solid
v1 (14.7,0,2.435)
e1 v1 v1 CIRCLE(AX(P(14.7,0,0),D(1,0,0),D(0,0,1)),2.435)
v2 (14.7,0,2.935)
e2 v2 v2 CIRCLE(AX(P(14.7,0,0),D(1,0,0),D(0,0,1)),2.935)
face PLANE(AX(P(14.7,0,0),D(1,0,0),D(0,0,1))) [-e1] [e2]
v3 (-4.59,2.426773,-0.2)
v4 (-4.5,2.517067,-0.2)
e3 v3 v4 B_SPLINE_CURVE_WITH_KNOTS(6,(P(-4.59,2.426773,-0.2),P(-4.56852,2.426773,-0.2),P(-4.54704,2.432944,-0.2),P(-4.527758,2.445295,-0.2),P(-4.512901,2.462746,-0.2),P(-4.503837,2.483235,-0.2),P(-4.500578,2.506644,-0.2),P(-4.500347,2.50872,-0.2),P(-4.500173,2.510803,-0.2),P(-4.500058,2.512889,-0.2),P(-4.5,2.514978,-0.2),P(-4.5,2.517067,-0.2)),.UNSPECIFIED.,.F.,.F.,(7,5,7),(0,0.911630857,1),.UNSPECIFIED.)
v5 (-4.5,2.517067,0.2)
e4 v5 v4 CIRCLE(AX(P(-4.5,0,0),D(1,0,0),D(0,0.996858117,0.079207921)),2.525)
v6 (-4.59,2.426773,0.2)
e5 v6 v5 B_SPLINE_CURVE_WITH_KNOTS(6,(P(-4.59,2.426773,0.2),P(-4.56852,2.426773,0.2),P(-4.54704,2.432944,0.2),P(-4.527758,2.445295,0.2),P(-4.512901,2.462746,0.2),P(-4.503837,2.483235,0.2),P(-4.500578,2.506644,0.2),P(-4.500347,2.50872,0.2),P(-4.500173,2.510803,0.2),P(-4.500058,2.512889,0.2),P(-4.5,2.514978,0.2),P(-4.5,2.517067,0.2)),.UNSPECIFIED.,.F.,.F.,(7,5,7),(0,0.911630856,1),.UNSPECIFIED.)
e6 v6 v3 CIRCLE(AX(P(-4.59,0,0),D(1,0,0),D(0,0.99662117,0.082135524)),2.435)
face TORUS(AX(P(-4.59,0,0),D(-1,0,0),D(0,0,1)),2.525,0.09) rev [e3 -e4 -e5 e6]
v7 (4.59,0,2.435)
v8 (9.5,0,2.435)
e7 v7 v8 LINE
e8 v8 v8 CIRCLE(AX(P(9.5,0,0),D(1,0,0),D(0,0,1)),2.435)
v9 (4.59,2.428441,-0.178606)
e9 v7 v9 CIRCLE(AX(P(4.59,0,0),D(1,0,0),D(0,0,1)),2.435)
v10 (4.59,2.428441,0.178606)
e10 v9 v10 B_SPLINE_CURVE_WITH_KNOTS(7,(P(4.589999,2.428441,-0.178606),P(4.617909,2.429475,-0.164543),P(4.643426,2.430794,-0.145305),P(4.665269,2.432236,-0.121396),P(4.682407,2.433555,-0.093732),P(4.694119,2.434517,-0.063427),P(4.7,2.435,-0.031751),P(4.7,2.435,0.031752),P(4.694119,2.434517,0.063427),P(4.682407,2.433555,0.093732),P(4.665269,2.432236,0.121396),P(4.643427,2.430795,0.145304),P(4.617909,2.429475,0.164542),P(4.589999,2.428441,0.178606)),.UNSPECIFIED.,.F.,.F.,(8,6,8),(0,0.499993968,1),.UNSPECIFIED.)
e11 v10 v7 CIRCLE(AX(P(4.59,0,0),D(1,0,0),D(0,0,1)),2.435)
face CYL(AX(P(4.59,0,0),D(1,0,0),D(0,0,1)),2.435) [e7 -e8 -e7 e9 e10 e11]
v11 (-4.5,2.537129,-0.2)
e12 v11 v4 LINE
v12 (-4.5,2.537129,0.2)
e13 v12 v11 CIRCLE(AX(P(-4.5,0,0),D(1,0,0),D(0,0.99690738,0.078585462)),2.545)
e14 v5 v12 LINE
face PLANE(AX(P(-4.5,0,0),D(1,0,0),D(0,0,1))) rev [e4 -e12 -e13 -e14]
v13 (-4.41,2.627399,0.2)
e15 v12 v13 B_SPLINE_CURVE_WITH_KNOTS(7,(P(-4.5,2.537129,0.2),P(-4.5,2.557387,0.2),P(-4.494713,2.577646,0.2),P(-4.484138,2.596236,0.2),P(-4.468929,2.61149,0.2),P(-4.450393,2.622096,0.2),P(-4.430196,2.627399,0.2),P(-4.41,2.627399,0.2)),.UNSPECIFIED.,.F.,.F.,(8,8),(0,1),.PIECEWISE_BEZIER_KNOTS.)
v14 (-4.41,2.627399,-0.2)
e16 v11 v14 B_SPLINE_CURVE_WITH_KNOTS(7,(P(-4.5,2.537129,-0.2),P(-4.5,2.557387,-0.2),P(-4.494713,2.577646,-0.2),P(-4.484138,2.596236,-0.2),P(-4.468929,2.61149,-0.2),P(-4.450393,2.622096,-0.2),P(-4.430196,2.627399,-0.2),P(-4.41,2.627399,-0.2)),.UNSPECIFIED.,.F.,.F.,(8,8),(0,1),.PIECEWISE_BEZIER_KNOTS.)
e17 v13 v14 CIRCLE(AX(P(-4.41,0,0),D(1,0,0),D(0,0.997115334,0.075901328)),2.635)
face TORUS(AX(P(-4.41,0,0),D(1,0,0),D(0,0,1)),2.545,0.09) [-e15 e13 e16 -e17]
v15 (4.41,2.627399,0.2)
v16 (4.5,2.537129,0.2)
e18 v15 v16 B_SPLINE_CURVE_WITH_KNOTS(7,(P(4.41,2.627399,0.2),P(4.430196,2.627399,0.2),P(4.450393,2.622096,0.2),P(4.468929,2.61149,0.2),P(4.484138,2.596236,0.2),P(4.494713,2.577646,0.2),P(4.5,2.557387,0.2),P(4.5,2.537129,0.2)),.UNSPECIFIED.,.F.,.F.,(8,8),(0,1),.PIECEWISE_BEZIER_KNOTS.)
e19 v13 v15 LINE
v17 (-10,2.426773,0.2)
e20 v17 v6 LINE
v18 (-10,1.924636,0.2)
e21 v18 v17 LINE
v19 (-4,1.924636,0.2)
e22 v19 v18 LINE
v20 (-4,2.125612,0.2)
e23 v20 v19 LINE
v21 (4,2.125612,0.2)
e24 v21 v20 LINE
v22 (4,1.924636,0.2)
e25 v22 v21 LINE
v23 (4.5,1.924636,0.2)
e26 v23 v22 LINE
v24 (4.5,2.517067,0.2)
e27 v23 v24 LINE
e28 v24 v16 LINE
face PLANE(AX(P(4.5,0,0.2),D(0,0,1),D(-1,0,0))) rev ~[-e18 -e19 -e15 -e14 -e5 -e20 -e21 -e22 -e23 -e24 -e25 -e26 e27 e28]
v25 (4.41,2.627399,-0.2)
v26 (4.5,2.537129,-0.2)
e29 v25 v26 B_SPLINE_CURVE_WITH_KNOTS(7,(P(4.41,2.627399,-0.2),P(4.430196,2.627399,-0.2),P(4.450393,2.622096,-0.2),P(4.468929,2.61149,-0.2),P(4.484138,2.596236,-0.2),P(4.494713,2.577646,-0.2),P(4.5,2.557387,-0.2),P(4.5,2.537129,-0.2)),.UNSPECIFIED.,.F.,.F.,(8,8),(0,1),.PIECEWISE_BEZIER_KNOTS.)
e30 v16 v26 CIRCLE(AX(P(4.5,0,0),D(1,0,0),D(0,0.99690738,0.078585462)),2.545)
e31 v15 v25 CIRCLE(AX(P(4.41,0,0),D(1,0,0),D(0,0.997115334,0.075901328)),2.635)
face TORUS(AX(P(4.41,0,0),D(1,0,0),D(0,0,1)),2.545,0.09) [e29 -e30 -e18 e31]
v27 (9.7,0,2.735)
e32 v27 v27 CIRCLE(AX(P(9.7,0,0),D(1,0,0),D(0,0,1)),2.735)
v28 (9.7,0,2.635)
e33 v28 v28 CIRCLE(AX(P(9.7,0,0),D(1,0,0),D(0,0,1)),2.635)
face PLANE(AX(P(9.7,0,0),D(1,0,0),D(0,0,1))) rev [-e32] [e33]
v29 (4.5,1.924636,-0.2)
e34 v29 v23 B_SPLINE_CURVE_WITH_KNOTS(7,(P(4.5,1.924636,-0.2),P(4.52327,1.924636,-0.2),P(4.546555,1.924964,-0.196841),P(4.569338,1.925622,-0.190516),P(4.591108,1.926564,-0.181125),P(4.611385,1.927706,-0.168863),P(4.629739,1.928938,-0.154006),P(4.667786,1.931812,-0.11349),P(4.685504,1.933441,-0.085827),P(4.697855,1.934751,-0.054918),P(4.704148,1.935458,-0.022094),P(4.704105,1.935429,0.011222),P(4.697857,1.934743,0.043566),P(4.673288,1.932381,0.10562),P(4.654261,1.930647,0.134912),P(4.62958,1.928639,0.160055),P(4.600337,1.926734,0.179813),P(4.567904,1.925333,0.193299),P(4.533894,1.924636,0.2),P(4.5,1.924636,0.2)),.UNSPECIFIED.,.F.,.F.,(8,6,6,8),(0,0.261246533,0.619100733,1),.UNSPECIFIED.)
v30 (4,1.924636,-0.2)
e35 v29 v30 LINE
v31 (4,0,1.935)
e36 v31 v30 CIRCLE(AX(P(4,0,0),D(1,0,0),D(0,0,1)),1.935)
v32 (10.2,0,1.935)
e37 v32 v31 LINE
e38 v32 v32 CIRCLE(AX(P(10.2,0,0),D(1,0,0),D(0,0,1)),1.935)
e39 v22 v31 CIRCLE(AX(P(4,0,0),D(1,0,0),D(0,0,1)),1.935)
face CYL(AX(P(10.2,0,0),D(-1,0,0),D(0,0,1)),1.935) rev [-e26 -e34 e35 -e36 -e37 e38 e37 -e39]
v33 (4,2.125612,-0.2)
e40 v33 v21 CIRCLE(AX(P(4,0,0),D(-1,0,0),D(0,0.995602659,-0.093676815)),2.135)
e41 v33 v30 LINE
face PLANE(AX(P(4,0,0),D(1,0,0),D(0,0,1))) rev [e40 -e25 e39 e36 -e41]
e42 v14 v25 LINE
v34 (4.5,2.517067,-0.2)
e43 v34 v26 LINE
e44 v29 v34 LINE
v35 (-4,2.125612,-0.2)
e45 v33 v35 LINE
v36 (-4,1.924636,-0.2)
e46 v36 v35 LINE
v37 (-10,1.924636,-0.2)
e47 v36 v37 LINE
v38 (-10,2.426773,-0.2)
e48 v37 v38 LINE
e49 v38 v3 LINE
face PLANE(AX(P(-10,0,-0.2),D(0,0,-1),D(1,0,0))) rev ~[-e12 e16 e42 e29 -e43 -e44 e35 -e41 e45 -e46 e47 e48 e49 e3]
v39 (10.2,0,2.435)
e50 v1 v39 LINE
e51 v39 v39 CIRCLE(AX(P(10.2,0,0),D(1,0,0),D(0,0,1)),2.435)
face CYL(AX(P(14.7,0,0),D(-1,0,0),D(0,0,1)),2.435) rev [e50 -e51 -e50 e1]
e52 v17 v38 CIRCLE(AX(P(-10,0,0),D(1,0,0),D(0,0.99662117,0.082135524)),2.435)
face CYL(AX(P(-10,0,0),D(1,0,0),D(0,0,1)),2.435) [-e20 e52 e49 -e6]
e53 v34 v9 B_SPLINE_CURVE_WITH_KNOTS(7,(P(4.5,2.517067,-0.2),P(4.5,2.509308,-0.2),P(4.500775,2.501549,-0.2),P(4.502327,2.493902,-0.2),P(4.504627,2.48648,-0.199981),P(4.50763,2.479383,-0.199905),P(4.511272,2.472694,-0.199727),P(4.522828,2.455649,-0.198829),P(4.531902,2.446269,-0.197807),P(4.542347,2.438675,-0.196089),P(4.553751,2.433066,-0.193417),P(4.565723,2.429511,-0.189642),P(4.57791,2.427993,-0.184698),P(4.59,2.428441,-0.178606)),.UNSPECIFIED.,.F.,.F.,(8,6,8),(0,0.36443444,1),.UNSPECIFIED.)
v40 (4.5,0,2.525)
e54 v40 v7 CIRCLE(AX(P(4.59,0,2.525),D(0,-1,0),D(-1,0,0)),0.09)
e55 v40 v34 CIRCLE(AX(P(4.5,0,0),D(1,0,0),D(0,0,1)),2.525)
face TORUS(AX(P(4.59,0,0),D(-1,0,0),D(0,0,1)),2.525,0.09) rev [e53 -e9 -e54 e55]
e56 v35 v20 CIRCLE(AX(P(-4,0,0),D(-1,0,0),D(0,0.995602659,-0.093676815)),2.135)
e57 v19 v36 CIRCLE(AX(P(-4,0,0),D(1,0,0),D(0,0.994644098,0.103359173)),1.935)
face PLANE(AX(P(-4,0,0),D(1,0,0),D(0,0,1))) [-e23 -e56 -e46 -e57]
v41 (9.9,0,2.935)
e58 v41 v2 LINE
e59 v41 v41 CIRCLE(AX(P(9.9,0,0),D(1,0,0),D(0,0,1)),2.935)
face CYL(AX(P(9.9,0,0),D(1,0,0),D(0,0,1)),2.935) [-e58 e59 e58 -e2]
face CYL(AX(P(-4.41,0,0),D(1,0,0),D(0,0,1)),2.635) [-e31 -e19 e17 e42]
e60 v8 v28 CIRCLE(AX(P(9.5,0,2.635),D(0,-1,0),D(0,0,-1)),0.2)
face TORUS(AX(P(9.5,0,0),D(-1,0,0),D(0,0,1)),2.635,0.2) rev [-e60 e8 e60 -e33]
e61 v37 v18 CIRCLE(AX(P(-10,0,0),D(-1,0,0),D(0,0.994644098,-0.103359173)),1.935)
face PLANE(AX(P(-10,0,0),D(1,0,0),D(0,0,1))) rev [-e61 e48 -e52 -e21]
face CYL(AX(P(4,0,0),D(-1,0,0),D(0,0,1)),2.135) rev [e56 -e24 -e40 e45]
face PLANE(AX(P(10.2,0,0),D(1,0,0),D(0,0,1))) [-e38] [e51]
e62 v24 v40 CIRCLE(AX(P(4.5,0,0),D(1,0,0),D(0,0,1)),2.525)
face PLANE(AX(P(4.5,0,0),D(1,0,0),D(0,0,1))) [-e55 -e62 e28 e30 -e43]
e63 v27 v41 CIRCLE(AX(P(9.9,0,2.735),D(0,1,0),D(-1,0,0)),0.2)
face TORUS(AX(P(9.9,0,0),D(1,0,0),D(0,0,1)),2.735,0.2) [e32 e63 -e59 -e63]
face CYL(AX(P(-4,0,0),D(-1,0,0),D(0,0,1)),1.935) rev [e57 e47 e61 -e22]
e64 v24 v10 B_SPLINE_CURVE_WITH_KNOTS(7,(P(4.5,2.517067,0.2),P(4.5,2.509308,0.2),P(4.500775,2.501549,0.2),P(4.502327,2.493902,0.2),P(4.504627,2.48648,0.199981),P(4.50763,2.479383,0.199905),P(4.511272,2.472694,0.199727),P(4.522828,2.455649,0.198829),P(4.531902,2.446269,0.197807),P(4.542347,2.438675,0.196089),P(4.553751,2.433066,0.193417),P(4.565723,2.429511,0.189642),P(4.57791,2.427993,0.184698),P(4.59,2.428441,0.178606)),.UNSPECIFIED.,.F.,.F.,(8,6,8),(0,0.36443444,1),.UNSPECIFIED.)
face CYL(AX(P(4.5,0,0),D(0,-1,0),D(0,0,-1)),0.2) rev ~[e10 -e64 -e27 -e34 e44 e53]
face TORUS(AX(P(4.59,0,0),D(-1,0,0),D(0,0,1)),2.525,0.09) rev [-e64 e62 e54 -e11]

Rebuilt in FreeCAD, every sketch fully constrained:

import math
import FreeCAD as App
import Part
import Sketcher
from FreeCAD import Vector

doc = App.newDocument("Part")
params = doc.addObject("Spreadsheet::Sheet", "Params")
for row, (alias, value) in enumerate([
    ("sketch1_radius", "0.2 mm"),
    ("sketch1_width", "6 mm"),
    ("sketch1_width2", "8 mm"),
    ("sketch1_radius2", "0.09 mm"),
    ("sketch1_width3", "4.5 mm"),
    ("revolution_angle", "360 deg"),
    ("sketch2_radius", "0.2 mm"),
    ("sketch2_width", "14.5 mm"),
], start=1):
    params.set(f"A{row}", alias)
    params.set(f"B{row}", "=" + value)
    params.setAlias(f"B{row}", alias)

body = doc.addObject("PartDesign::Body", "Body")

# Sketch on XZ plane
sketch1 = body.newObject("Sketcher::SketchObject", "Sketch")
sketch1.AttachmentSupport = (doc.getObject("XZ_Plane"), [""])
sketch1.MapMode = "FlatFace"
sketch1.addGeometry(Part.LineSegment(Vector(10.2, -2.435, 0), Vector(14.7, -2.435, 0)), False)
sketch1.addGeometry(Part.LineSegment(Vector(14.7, -2.435, 0), Vector(14.7, -2.935, 0)), False)
sketch1.addGeometry(Part.LineSegment(Vector(14.7, -2.935, 0), Vector(9.9, -2.935, 0)), False)
sketch1.addGeometry(Part.ArcOfCircle(Part.Circle(Vector(9.9, -2.735, 0), Vector(0, 0, 1), 0.2), math.radians(180), math.radians(270)), False)
sketch1.addGeometry(Part.LineSegment(Vector(9.7, -2.735, 0), Vector(9.7, -2.635, 0)), False)
sketch1.addGeometry(Part.ArcOfCircle(Part.Circle(Vector(9.5, -2.635, 0), Vector(0, 0, 1), 0.2), math.radians(0), math.radians(90)), False)
sketch1.addGeometry(Part.LineSegment(Vector(9.5, -2.435, 0), Vector(4.59, -2.435, 0)), False)
sketch1.addGeometry(Part.ArcOfCircle(Part.Circle(Vector(4.59, -2.525, 0), Vector(0, 0, 1), 0.09), math.radians(90), math.radians(180)), False)
sketch1.addGeometry(Part.LineSegment(Vector(4.5, -2.525, 0), Vector(4.5, -2.545, 0)), False)
sketch1.addGeometry(Part.ArcOfCircle(Part.Circle(Vector(4.41, -2.545, 0), Vector(0, 0, 1), 0.09), math.radians(-90), math.radians(0)), False)
sketch1.addGeometry(Part.LineSegment(Vector(4.41, -2.635, 0), Vector(-4.41, -2.635, 0)), False)
sketch1.addGeometry(Part.ArcOfCircle(Part.Circle(Vector(-4.41, -2.545, 0), Vector(0, 0, 1), 0.09), math.radians(180), math.radians(270)), False)
sketch1.addGeometry(Part.LineSegment(Vector(-4.5, -2.545, 0), Vector(-4.5, -2.525, 0)), False)
sketch1.addGeometry(Part.ArcOfCircle(Part.Circle(Vector(-4.59, -2.525, 0), Vector(0, 0, 1), 0.09), math.radians(0), math.radians(90)), False)
sketch1.addGeometry(Part.LineSegment(Vector(-4.59, -2.435, 0), Vector(-10, -2.435, 0)), False)
sketch1.addGeometry(Part.LineSegment(Vector(-10, -2.435, 0), Vector(-10, -1.935, 0)), False)
sketch1.addGeometry(Part.LineSegment(Vector(-10, -1.935, 0), Vector(-4, -1.935, 0)), False)
sketch1.addGeometry(Part.LineSegment(Vector(-4, -1.935, 0), Vector(-4, -2.135, 0)), False)
sketch1.addGeometry(Part.LineSegment(Vector(-4, -2.135, 0), Vector(4, -2.135, 0)), False)
sketch1.addGeometry(Part.LineSegment(Vector(4, -2.135, 0), Vector(4, -1.935, 0)), False)
sketch1.addGeometry(Part.LineSegment(Vector(4, -1.935, 0), Vector(10.2, -1.935, 0)), False)
sketch1.addGeometry(Part.LineSegment(Vector(10.2, -1.935, 0), Vector(10.2, -2.435, 0)), False)
sketch1.addConstraint(Sketcher.Constraint("Coincident", 0, 2, 1, 1))
sketch1.addConstraint(Sketcher.Constraint("Coincident", 1, 2, 2, 1))
sketch1.addConstraint(Sketcher.Constraint("Tangent", 2, 2, 3, 2))
sketch1.addConstraint(Sketcher.Constraint("Tangent", 3, 1, 4, 1))
sketch1.addConstraint(Sketcher.Constraint("Tangent", 4, 2, 5, 1))
sketch1.addConstraint(Sketcher.Constraint("Tangent", 5, 2, 6, 1))
sketch1.addConstraint(Sketcher.Constraint("Tangent", 6, 2, 7, 1))
sketch1.addConstraint(Sketcher.Constraint("Tangent", 7, 2, 8, 1))
sketch1.addConstraint(Sketcher.Constraint("Tangent", 8, 2, 9, 2))
sketch1.addConstraint(Sketcher.Constraint("Tangent", 9, 1, 10, 1))
sketch1.addConstraint(Sketcher.Constraint("Tangent", 10, 2, 11, 2))
sketch1.addConstraint(Sketcher.Constraint("Tangent", 11, 1, 12, 1))
sketch1.addConstraint(Sketcher.Constraint("Tangent", 12, 2, 13, 1))
sketch1.addConstraint(Sketcher.Constraint("Tangent", 13, 2, 14, 1))
sketch1.addConstraint(Sketcher.Constraint("Coincident", 14, 2, 15, 1))
sketch1.addConstraint(Sketcher.Constraint("Coincident", 15, 2, 16, 1))
sketch1.addConstraint(Sketcher.Constraint("Coincident", 16, 2, 17, 1))
sketch1.addConstraint(Sketcher.Constraint("Coincident", 17, 2, 18, 1))
sketch1.addConstraint(Sketcher.Constraint("Coincident", 18, 2, 19, 1))
sketch1.addConstraint(Sketcher.Constraint("Coincident", 19, 2, 20, 1))
sketch1.addConstraint(Sketcher.Constraint("Coincident", 20, 2, 21, 1))
sketch1.addConstraint(Sketcher.Constraint("Coincident", 21, 2, 0, 1))
sketch1.addConstraint(Sketcher.Constraint("Horizontal", 0))
sketch1.addConstraint(Sketcher.Constraint("Vertical", 1))
sketch1.addConstraint(Sketcher.Constraint("Horizontal", 2))
sketch1.addConstraint(Sketcher.Constraint("Vertical", 4))
sketch1.addConstraint(Sketcher.Constraint("Horizontal", 6))
sketch1.addConstraint(Sketcher.Constraint("Vertical", 8))
sketch1.addConstraint(Sketcher.Constraint("Horizontal", 10))
sketch1.addConstraint(Sketcher.Constraint("Vertical", 12))
sketch1.addConstraint(Sketcher.Constraint("Horizontal", 14))
sketch1.addConstraint(Sketcher.Constraint("Vertical", 15))
sketch1.addConstraint(Sketcher.Constraint("Horizontal", 16))
sketch1.addConstraint(Sketcher.Constraint("Vertical", 17))
sketch1.addConstraint(Sketcher.Constraint("Horizontal", 18))
sketch1.addConstraint(Sketcher.Constraint("Vertical", 19))
sketch1.addConstraint(Sketcher.Constraint("Horizontal", 20))
sketch1.addConstraint(Sketcher.Constraint("Vertical", 21))
sketch1.addConstraint(Sketcher.Constraint("Equal", 3, 5))
sketch1.addConstraint(Sketcher.Constraint("Equal", 7, 9))
sketch1.addConstraint(Sketcher.Constraint("Equal", 9, 11))
sketch1.addConstraint(Sketcher.Constraint("Equal", 11, 13))
sketch1.addConstraint(Sketcher.Constraint("Symmetric", 7, 3, 13, 3, -2))
sketch1.addConstraint(Sketcher.Constraint("Symmetric", 16, 2, 19, 2, -2))
sketch1.addConstraint(Sketcher.Constraint("Horizontal", 0, 2, 5, 2))
sketch1.addConstraint(Sketcher.Constraint("Horizontal", 4, 2, 9, 1))
sketch1.addConstraint(Sketcher.Constraint("Equal", 1, 15))
sketch1.addConstraint(Sketcher.Constraint("Radius", 3, 0.2))
sketch1.addConstraint(Sketcher.Constraint("DistanceX", 16, 1, 16, 2, 6.0))
sketch1.addConstraint(Sketcher.Constraint("DistanceX", 18, 1, 18, 2, 8.0))
sketch1.addConstraint(Sketcher.Constraint("Radius", 7, 0.09))
sketch1.addConstraint(Sketcher.Constraint("DistanceX", 0, 1, 0, 2, 4.5))
sketch1.addConstraint(Sketcher.Constraint("DistanceX", 2, 2, 2, 1, 4.8))
sketch1.addConstraint(Sketcher.Constraint("DistanceX", 20, 1, 20, 2, 6.2))
sketch1.addConstraint(Sketcher.Constraint("DistanceY", 1, 2, 1, 1, 0.5))
sketch1.addConstraint(Sketcher.Constraint("DistanceY", 17, 2, 17, 1, 0.2))
sketch1.addConstraint(Sketcher.Constraint("DistanceX", 11, 3, 7, 3, 9.0))
sketch1.addConstraint(Sketcher.Constraint("DistanceY", 3, 3, -1, 1, 2.735))
sketch1.setExpression("Constraints[47]", "Params.sketch1_radius")
sketch1.setExpression("Constraints[48]", "Params.sketch1_width")
sketch1.setExpression("Constraints[49]", "Params.sketch1_width2")
sketch1.setExpression("Constraints[50]", "Params.sketch1_radius2")
sketch1.setExpression("Constraints[51]", "Params.sketch1_width3")
revolution = body.newObject("PartDesign::Revolution", "Revolution")
revolution.Profile = sketch1
revolution.ReferenceAxis = (sketch1, ["H_Axis"])
revolution.setExpression("Angle", "Params.revolution_angle")

# Sketch on XZ plane
sketch2 = body.newObject("Sketcher::SketchObject", "Sketch001")
sketch2.AttachmentSupport = (doc.getObject("XZ_Plane"), [""])
sketch2.MapMode = "FlatFace"
sketch2.addGeometry(Part.LineSegment(Vector(4.5, -0.2, 0), Vector(-10, -0.2, 0)), False)
sketch2.addGeometry(Part.LineSegment(Vector(-10, -0.2, 0), Vector(-10, 0.2, 0)), False)
sketch2.addGeometry(Part.LineSegment(Vector(-10, 0.2, 0), Vector(4.5, 0.2, 0)), False)
sketch2.addGeometry(Part.ArcOfCircle(Part.Circle(Vector(4.5, 0, 0), Vector(0, 0, 1), 0.2), math.radians(-90), math.radians(90)), False)
sketch2.addConstraint(Sketcher.Constraint("Coincident", 0, 2, 1, 1))
sketch2.addConstraint(Sketcher.Constraint("Coincident", 1, 2, 2, 1))
sketch2.addConstraint(Sketcher.Constraint("Tangent", 2, 2, 3, 2))
sketch2.addConstraint(Sketcher.Constraint("Tangent", 3, 1, 0, 1))
sketch2.addConstraint(Sketcher.Constraint("Horizontal", 0))
sketch2.addConstraint(Sketcher.Constraint("Vertical", 1))
sketch2.addConstraint(Sketcher.Constraint("Horizontal", 2))
sketch2.addConstraint(Sketcher.Constraint("PointOnObject", 3, 3, -1))
sketch2.addConstraint(Sketcher.Constraint("Radius", 3, 0.2))
sketch2.addConstraint(Sketcher.Constraint("DistanceX", 0, 2, 0, 1, 14.5))
sketch2.addConstraint(Sketcher.Constraint("DistanceX", 0, 2, -1, 1, 10.0))
sketch2.setExpression("Constraints[8]", "Params.sketch2_radius")
sketch2.setExpression("Constraints[9]", "Params.sketch2_width")
pocket1 = body.newObject("PartDesign::Pocket", "Pocket")
pocket1.Profile = sketch2
pocket1.Type = "ThroughAll"

doc.recompute()
